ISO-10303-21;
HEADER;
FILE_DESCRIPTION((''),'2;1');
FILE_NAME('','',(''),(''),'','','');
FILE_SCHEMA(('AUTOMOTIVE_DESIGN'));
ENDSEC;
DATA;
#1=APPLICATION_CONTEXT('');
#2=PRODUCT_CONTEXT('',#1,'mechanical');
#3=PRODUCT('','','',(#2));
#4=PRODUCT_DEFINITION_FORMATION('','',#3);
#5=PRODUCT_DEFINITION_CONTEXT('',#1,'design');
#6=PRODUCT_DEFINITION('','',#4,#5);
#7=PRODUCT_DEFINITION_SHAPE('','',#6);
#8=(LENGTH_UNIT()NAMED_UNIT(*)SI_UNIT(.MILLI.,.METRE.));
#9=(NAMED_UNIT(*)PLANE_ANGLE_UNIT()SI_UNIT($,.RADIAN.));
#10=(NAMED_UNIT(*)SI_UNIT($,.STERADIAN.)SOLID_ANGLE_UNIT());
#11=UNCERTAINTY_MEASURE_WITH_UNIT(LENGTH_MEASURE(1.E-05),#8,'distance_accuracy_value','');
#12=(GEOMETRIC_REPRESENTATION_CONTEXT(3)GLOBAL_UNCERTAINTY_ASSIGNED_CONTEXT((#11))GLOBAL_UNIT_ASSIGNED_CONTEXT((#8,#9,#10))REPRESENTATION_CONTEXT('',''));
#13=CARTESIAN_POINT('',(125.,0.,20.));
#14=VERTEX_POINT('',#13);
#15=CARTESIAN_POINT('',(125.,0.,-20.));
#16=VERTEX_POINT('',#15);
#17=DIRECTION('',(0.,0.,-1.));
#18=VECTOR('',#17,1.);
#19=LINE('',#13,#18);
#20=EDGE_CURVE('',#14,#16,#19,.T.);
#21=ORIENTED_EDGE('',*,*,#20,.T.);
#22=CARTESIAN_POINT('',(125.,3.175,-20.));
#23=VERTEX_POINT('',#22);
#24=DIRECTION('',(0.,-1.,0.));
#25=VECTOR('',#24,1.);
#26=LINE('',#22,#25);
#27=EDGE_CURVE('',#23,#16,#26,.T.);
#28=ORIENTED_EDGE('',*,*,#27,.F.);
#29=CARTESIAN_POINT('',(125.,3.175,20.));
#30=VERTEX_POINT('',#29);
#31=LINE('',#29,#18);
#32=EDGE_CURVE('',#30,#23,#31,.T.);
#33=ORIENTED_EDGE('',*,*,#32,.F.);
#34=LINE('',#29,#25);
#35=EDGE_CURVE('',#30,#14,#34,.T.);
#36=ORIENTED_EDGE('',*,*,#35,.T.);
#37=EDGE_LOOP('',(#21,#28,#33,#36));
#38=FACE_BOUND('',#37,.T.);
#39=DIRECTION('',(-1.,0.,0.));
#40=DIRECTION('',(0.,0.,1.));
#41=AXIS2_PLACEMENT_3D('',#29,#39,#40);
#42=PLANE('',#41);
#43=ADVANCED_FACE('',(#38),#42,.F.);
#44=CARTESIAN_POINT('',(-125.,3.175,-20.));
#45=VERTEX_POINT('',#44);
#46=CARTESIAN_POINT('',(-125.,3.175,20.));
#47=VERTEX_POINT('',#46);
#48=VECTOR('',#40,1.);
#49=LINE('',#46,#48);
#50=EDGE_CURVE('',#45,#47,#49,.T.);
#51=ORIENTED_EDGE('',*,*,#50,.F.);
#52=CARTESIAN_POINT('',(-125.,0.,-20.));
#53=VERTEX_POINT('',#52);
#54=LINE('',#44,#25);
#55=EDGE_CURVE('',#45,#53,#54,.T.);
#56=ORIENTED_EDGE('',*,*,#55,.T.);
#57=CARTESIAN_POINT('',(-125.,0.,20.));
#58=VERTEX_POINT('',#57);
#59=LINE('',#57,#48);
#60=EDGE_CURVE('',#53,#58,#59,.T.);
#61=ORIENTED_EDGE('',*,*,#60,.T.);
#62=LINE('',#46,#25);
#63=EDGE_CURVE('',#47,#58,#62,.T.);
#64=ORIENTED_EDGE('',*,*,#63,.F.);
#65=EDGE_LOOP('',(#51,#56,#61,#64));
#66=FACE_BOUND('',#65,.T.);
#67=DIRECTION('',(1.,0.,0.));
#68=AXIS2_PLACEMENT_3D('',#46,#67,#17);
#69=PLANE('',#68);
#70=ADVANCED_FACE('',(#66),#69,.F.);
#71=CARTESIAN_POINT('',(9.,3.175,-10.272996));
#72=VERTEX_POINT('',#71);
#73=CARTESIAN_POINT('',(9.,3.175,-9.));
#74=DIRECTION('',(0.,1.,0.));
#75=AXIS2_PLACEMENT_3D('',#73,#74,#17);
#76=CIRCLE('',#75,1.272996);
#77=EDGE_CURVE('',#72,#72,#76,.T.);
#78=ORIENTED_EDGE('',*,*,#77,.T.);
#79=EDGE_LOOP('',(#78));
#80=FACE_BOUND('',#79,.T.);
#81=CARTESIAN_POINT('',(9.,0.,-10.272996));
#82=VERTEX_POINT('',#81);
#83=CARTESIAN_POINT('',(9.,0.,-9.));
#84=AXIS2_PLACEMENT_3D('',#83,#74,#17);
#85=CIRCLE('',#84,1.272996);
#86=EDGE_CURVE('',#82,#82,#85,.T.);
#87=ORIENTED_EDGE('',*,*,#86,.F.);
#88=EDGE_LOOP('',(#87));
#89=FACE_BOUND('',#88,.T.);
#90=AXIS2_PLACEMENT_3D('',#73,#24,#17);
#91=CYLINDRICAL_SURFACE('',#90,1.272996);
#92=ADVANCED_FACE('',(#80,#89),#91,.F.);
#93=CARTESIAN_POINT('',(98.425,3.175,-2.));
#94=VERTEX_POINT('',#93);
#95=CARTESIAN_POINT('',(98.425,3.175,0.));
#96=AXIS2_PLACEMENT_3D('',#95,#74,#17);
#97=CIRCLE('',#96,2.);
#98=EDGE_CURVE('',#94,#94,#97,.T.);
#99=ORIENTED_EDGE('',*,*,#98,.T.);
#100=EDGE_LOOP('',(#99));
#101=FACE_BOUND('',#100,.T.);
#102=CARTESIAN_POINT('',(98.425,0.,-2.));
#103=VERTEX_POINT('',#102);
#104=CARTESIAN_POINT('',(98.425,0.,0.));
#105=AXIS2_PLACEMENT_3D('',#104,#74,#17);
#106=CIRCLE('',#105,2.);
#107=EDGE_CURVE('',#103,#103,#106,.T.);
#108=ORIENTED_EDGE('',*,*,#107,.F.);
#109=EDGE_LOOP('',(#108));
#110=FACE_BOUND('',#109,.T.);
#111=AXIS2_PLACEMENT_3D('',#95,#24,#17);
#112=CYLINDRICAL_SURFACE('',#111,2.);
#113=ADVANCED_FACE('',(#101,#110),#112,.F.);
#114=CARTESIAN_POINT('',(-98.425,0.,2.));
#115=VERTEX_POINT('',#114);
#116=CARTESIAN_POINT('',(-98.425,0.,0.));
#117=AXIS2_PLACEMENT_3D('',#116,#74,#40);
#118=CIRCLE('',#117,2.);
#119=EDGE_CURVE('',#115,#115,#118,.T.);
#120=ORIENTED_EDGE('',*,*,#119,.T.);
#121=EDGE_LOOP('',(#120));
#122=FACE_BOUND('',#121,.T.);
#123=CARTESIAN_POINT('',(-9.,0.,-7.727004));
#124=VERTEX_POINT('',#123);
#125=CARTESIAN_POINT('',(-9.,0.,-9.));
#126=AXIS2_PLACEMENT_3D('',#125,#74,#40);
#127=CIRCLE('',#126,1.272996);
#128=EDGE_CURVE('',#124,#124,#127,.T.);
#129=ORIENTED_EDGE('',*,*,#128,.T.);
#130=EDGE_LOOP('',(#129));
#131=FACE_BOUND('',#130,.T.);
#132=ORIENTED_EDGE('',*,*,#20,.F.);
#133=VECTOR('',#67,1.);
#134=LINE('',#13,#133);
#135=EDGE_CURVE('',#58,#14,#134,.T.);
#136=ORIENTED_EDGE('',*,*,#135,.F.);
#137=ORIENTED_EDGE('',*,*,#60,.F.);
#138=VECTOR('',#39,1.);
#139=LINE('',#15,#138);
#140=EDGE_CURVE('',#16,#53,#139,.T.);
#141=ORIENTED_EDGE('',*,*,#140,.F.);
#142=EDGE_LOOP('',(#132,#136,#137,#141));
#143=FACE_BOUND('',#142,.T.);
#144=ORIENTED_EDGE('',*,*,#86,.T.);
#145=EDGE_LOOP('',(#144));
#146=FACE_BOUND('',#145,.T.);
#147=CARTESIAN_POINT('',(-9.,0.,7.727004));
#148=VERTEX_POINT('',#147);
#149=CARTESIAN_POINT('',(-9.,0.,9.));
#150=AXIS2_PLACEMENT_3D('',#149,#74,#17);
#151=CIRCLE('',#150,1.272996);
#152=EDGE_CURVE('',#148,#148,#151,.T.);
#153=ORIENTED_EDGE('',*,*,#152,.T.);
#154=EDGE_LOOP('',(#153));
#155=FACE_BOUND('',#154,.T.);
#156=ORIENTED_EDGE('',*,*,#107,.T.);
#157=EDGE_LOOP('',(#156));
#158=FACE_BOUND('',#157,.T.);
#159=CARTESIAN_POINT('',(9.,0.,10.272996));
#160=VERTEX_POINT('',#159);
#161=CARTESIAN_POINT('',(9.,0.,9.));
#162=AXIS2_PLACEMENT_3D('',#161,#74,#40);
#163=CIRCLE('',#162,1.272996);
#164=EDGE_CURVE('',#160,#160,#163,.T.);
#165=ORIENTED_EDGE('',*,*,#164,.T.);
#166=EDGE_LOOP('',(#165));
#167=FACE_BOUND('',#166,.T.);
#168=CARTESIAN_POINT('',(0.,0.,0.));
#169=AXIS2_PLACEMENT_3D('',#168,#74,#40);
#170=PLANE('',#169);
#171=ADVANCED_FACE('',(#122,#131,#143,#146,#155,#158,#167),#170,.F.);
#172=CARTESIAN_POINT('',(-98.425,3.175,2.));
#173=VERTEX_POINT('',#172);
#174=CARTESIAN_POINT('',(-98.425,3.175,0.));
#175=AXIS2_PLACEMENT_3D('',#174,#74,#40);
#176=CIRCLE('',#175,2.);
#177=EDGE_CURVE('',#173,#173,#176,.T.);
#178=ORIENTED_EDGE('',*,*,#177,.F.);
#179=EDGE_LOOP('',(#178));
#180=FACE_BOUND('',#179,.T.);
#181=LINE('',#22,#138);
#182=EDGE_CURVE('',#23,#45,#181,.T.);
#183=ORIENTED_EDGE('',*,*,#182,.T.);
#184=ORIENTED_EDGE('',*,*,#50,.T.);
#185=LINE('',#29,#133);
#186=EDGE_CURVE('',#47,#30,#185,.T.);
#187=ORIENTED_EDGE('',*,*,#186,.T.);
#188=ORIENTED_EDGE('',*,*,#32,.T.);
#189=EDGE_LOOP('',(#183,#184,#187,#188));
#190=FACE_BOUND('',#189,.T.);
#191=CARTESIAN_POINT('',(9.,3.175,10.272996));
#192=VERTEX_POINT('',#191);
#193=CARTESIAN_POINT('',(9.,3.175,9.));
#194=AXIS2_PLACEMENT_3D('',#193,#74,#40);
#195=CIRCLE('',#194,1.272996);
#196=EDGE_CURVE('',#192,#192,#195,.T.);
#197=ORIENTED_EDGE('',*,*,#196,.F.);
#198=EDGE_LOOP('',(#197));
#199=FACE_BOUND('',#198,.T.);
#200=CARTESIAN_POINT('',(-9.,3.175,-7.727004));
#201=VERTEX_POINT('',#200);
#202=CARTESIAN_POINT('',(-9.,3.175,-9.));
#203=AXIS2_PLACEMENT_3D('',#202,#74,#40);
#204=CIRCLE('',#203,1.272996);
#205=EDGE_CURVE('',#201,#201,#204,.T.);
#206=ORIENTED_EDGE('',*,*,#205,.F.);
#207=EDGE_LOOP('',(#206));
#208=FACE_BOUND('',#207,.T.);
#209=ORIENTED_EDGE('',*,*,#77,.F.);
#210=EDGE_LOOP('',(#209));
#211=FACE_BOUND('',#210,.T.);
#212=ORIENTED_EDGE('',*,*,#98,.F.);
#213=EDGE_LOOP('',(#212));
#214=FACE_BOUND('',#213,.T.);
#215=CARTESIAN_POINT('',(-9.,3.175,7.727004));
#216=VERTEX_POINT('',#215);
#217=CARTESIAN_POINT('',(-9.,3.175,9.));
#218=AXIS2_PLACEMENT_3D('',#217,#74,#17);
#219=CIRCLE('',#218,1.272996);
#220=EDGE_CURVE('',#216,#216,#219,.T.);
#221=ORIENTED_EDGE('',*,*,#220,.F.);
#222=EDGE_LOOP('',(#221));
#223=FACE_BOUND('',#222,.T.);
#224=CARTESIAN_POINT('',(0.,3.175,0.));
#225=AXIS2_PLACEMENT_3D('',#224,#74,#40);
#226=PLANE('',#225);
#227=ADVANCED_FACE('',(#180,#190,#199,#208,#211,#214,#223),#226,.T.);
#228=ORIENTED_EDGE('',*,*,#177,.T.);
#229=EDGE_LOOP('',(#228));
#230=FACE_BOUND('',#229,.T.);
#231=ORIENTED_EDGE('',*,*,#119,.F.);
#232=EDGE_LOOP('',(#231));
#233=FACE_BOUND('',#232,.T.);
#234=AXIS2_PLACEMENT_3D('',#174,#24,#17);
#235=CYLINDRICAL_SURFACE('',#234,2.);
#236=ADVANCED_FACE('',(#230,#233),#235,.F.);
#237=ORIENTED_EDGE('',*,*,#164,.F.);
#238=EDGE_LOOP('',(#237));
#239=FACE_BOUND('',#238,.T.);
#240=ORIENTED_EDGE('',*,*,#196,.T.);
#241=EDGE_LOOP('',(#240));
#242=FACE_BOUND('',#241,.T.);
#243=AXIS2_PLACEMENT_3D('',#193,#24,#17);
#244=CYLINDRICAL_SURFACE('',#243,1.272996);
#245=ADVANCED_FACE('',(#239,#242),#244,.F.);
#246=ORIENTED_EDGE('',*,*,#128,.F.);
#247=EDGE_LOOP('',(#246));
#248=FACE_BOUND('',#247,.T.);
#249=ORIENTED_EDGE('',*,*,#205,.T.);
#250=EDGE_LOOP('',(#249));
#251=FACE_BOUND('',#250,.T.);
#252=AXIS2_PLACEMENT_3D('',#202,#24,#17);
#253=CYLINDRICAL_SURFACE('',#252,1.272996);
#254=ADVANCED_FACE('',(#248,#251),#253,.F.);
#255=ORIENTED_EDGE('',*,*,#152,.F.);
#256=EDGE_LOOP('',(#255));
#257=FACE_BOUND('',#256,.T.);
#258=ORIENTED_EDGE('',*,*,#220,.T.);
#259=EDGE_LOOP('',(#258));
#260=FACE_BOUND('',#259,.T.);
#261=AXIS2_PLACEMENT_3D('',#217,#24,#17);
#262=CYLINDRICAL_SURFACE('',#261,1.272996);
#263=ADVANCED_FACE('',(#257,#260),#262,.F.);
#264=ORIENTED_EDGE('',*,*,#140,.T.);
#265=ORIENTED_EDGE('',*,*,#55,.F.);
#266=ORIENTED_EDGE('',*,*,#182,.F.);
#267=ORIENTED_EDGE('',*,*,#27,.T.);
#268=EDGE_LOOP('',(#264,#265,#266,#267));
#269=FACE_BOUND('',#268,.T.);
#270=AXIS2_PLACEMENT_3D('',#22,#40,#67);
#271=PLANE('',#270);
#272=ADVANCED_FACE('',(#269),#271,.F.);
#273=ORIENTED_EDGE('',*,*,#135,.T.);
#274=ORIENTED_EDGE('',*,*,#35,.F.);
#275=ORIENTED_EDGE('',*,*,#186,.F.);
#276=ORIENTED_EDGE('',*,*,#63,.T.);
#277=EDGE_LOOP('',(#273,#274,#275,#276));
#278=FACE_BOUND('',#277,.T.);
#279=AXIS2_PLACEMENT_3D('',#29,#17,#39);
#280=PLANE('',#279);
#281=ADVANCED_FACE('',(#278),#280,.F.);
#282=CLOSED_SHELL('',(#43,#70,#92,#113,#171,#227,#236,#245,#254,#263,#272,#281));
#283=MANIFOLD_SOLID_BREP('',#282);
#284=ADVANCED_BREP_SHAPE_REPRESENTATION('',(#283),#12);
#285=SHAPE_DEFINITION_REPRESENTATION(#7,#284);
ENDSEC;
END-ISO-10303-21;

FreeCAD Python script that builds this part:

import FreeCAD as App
import Part
import Sketcher
from FreeCAD import Vector

doc = App.newDocument("Part")
body = doc.addObject("PartDesign::Body", "Body")

# Sketch on XZ plane
sketch1 = doc.addObject("Sketcher::SketchObject", "Sketch")
body.addObject(sketch1)
sketch1.AttachmentSupport = (doc.XZ_Plane, [""])
sketch1.MapMode = "FlatFace"
sketch1.addGeometry([
    Part.LineSegment(Vector(-125, -20, 0), Vector(-125, 20, 0)),  # 0
    Part.LineSegment(Vector(-125, 20, 0), Vector(125, 20, 0)),  # 1
    Part.LineSegment(Vector(125, 20, 0), Vector(125, -20, 0)),  # 2
    Part.LineSegment(Vector(125, -20, 0), Vector(-125, -20, 0)),  # 3
    Part.Circle(Vector(-9, 9, 0), Vector(0, 0, 1), 1.3),  # 4
    Part.Circle(Vector(9, 9, 0), Vector(0, 0, 1), 1.3),  # 5
    Part.Circle(Vector(-98.4, 0, 0), Vector(0, 0, 1), 2),  # 6
    Part.Circle(Vector(-9, -9, 0), Vector(0, 0, 1), 1.3),  # 7
    Part.Circle(Vector(98.4, 0, 0), Vector(0, 0, 1), 2),  # 8
    Part.Circle(Vector(9, -9, 0), Vector(0, 0, 1), 1.3),  # 9
], False)
sketch1.addConstraint([
    Sketcher.Constraint("Coincident", 0, 2, 1, 1),
    Sketcher.Constraint("Coincident", 1, 2, 2, 1),
    Sketcher.Constraint("Coincident", 2, 2, 3, 1),
    Sketcher.Constraint("Coincident", 3, 2, 0, 1),
    Sketcher.Constraint("Vertical", 0),
    Sketcher.Constraint("Horizontal", 1),
    Sketcher.Constraint("Vertical", 2),
    Sketcher.Constraint("Horizontal", 3),
    Sketcher.Constraint("Equal", 4, 5),
    Sketcher.Constraint("Equal", 5, 7),
    Sketcher.Constraint("Equal", 6, 8),
    Sketcher.Constraint("Equal", 7, 9),
    Sketcher.Constraint("Symmetric", 5, 3, 7, 3, -1, 1),
    Sketcher.Constraint("Symmetric", 6, 3, 8, 3, -1, 1),
    Sketcher.Constraint("Symmetric", 4, 3, 9, 3, -1, 1),
    Sketcher.Constraint("Symmetric", 0, 2, 2, 2, -1, 1),
    Sketcher.Constraint("Symmetric", 4, 3, 5, 3, -2),
    Sketcher.Constraint("PointOnObject", 6, 3, -1),
    Sketcher.Constraint("Diameter", 6, 4.0),
    Sketcher.Constraint("DistanceX", 1, 1, 1, 2, 250.0),
    Sketcher.Constraint("DistanceY", 0, 1, 0, 2, 40.0),
    Sketcher.Constraint("DistanceX", 4, 3, -1, 1, 9.0),
    Sketcher.Constraint("DistanceY", -1, 1, 4, 3, 9.0),
    Sketcher.Constraint("Diameter", 4, 2.545992),
    Sketcher.Constraint("DistanceX", 6, 3, 8, 3, 196.85),
])
pad1 = doc.addObject("PartDesign::Pad", "Pad")
body.addObject(pad1)
pad1.Profile = sketch1
pad1.Length = 3.175
pad1.Reversed = True

doc.recompute()
